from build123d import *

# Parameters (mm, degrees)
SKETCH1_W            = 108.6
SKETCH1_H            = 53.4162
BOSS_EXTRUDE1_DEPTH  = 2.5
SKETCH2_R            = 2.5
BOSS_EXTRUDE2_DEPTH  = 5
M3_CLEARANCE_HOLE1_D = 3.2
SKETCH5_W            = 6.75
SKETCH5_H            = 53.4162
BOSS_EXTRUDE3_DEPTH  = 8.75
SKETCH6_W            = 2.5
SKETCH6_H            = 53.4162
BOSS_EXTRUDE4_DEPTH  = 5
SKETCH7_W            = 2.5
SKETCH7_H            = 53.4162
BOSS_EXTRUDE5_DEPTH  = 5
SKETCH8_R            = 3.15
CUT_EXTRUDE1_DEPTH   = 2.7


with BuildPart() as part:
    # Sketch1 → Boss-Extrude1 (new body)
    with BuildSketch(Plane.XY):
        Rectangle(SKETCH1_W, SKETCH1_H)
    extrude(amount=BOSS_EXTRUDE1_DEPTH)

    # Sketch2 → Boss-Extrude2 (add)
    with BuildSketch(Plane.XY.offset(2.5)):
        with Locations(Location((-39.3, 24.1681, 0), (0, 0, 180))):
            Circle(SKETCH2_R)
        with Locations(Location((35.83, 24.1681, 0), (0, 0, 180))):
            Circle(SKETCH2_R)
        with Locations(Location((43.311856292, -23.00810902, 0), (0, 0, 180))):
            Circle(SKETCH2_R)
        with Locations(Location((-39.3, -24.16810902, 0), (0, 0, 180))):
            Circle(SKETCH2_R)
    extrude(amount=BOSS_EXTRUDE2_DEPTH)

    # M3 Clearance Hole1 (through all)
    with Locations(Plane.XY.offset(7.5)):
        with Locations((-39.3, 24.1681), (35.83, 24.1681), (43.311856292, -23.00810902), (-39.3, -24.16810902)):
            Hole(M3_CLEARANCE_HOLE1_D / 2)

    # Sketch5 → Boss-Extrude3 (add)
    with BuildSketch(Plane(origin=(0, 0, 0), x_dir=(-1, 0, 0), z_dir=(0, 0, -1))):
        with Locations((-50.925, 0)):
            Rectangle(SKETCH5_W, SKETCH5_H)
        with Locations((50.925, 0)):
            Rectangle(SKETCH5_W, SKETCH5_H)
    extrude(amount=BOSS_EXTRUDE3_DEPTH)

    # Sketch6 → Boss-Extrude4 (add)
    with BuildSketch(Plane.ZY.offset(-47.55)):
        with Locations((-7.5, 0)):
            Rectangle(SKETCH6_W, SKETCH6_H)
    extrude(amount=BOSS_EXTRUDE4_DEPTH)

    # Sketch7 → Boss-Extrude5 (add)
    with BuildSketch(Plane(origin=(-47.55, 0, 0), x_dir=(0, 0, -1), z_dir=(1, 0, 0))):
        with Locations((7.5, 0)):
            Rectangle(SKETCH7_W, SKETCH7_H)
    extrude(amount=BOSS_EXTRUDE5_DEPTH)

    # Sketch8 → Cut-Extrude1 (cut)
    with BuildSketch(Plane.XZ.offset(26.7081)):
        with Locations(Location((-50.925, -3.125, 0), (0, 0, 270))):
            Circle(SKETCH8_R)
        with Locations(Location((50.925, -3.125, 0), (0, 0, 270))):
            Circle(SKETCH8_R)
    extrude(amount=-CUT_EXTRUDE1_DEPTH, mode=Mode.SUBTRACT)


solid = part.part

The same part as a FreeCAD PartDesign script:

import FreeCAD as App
import Part
import Sketcher
from FreeCAD import Vector


def add_polygon(sketch, points):
    """Adds a closed chain of lines whose ends are joined by coincident constraints."""
    first, n = sketch.GeometryCount, len(points)
    for a, b in zip(points, points[1:] + points[:1]):
        sketch.addGeometry(Part.LineSegment(App.Vector(*a, 0), App.Vector(*b, 0)), False)
    for i in range(n):
        sketch.addConstraint(Sketcher.Constraint("Coincident", first + i, 2, first + (i + 1) % n, 1))

doc = App.newDocument("Part")
body = doc.addObject("PartDesign::Body", "Body")

sketch1 = body.newObject("Sketcher::SketchObject", "Sketch")
sketch1.AttachmentSupport = (doc.getObject("XY_Plane"), [""])
sketch1.MapMode = "FlatFace"
add_polygon(sketch1, [(-54, 27), (-54, -27), (54, -27), (54, 27)])
sketch1.addConstraint([
    Sketcher.Constraint("Vertical", 0),
    Sketcher.Constraint("Horizontal", 1),
    Sketcher.Constraint("Vertical", 2),
    Sketcher.Constraint("Horizontal", 3),
    Sketcher.Constraint("Symmetric", 0, 2, 2, 2, -1, 1),
    Sketcher.Constraint("DistanceX", 1, 1, 1, 2, 108.6),
    Sketcher.Constraint("DistanceY", 0, 2, 0, 1, 53.4162),
])
pad1 = body.newObject("PartDesign::Pad", "Pad")
pad1.Profile = sketch1
pad1.Length = 2.5

sketch2 = body.newObject("Sketcher::SketchObject", "Sketch001")
sketch2.AttachmentSupport = (doc.getObject("XY_Plane"), [""])
sketch2.MapMode = "FlatFace"
sketch2.AttachmentOffset = App.Placement(Vector(0, 0, 2.5), App.Rotation())
sketch2.addGeometry([
    Part.Circle(Vector(-39.3, 24.2, 0), Vector(0, 0, 1), 2.5),
    Part.Circle(Vector(35.8, 24.2, 0), Vector(0, 0, 1), 2.5),
    Part.Circle(Vector(43.3, -23, 0), Vector(0, 0, 1), 2.5),
    Part.Circle(Vector(-39.3, -24.2, 0), Vector(0, 0, 1), 2.5),
], False)
sketch2.addConstraint([
    Sketcher.Constraint("Equal", 0, 1),
    Sketcher.Constraint("Equal", 1, 2),
    Sketcher.Constraint("Equal", 2, 3),
    Sketcher.Constraint("Symmetric", 0, 3, 3, 3, -1),
    Sketcher.Constraint("Horizontal", 0, 3, 1, 3),
    Sketcher.Constraint("Diameter", 0, 5.0),
    Sketcher.Constraint("DistanceX", 0, 3, -1, 1, 39.3),
    Sketcher.Constraint("DistanceX", -1, 1, 1, 3, 35.83),
    Sketcher.Constraint("DistanceY", 3, 3, 2, 3, 1.16),
    Sketcher.Constraint("DistanceY", -1, 1, 0, 3, 24.1681),
    Sketcher.Constraint("DistanceX", -1, 1, 2, 3, 43.311856),
])
pad2 = body.newObject("PartDesign::Pad", "Pad001")
pad2.Profile = sketch2
pad2.Length = 5

sketch3 = body.newObject("Sketcher::SketchObject", "Sketch002")
sketch3.AttachmentSupport = (doc.getObject("XY_Plane"), [""])
sketch3.MapMode = "FlatFace"
sketch3.AttachmentOffset = App.Placement(Vector(0, 0, 7.5), App.Rotation())
sketch3.addGeometry([
    Part.Circle(Vector(-39.3, 24.2, 0), Vector(0, 0, 1), 1.6),
    Part.Circle(Vector(35.8, 24.2, 0), Vector(0, 0, 1), 1.6),
    Part.Circle(Vector(43.3, -23, 0), Vector(0, 0, 1), 1.6),
    Part.Circle(Vector(-39.3, -24.2, 0), Vector(0, 0, 1), 1.6),
], False)
sketch3.addConstraint([
    Sketcher.Constraint("Equal", 0, 1),
    Sketcher.Constraint("Equal", 1, 2),
    Sketcher.Constraint("Equal", 2, 3),
    Sketcher.Constraint("Symmetric", 0, 3, 3, 3, -1),
    Sketcher.Constraint("Horizontal", 0, 3, 1, 3),
    Sketcher.Constraint("Diameter", 0, 3.2),
    Sketcher.Constraint("DistanceX", 0, 3, -1, 1, 39.3),
    Sketcher.Constraint("DistanceX", -1, 1, 1, 3, 35.83),
    Sketcher.Constraint("DistanceY", 3, 3, 2, 3, 1.16),
    Sketcher.Constraint("DistanceY", -1, 1, 0, 3, 24.1681),
    Sketcher.Constraint("DistanceX", -1, 1, 2, 3, 43.311856),
])
doc.recompute()
hole = body.newObject("PartDesign::Hole", "Hole")
hole.Profile = sketch3
hole.ThreadType = "None"
hole.Diameter = 3.2
hole.DepthType = "ThroughAll"

sketch4 = body.newObject("Sketcher::SketchObject", "Sketch003")
sketch4.AttachmentSupport = (doc.getObject("XY_Plane"), [""])
sketch4.MapMode = "FlatFace"
add_polygon(sketch4, [(54, 27), (54, -27), (48, -27), (48, 27)])
add_polygon(sketch4, [(-48, 27), (-48, -27), (-54, -27), (-54, 27)])
sketch4.addConstraint([
    Sketcher.Constraint("Vertical", 0),
    Sketcher.Constraint("Horizontal", 1),
    Sketcher.Constraint("Vertical", 2),
    Sketcher.Constraint("Horizontal", 3),
    Sketcher.Constraint("Vertical", 4),
    Sketcher.Constraint("Horizontal", 5),
    Sketcher.Constraint("Vertical", 6),
    Sketcher.Constraint("Horizontal", 7),
    Sketcher.Constraint("Symmetric", 2, 2, 4, 2, -1, 1),
    Sketcher.Constraint("Symmetric", 0, 2, 6, 2, -1, 1),
    Sketcher.Constraint("Horizontal", 1, 2, 4, 2),
    Sketcher.Constraint("DistanceX", 1, 2, 1, 1, 6.75),
    Sketcher.Constraint("DistanceX", -1, 1, 0, 2, 54.3),
    Sketcher.Constraint("DistanceY", 0, 2, 0, 1, 53.4162),
])
pad3 = body.newObject("PartDesign::Pad", "Pad002")
pad3.Profile = sketch4
pad3.Length = 8.75
pad3.Reversed = True

sketch5 = body.newObject("Sketcher::SketchObject", "Sketch004")
sketch5.AttachmentSupport = (doc.getObject("YZ_Plane"), [""])
sketch5.MapMode = "FlatFace"
sketch5.AttachmentOffset = App.Placement(Vector(0, 0, 47.55), App.Rotation())
add_polygon(sketch5, [(26.7, -8.8), (-26.7, -8.8), (-26.7, -6.2), (26.7, -6.2)])
sketch5.addConstraint([
    Sketcher.Constraint("Horizontal", 0),
    Sketcher.Constraint("Vertical", 1),
    Sketcher.Constraint("Horizontal", 2),
    Sketcher.Constraint("Vertical", 3),
    Sketcher.Constraint("DistanceY", 1, 1, 1, 2, 2.5),
    Sketcher.Constraint("DistanceY", 0, 2, -1, 1, 8.75),
    Sketcher.Constraint("DistanceX", 0, 2, 0, 1, 53.4162),
    Sketcher.Constraint("DistanceX", 0, 2, -1, 1, 26.7081),
])
pad4 = body.newObject("PartDesign::Pad", "Pad003")
pad4.Profile = sketch5
pad4.Length = 5
pad4.Reversed = True

sketch6 = body.newObject("Sketcher::SketchObject", "Sketch005")
sketch6.AttachmentSupport = (doc.getObject("YZ_Plane"), [""])
sketch6.MapMode = "FlatFace"
sketch6.AttachmentOffset = App.Placement(Vector(0, 0, -47.55), App.Rotation())
add_polygon(sketch6, [(26.7, -6.2), (-26.7, -6.2), (-26.7, -8.8), (26.7, -8.8)])
sketch6.addConstraint([
    Sketcher.Constraint("Horizontal", 0),
    Sketcher.Constraint("Vertical", 1),
    Sketcher.Constraint("Horizontal", 2),
    Sketcher.Constraint("Vertical", 3),
    Sketcher.Constraint("DistanceY", 1, 2, 1, 1, 2.5),
    Sketcher.Constraint("DistanceY", 0, 2, -1, 1, 6.25),
    Sketcher.Constraint("DistanceX", 0, 2, 0, 1, 53.4162),
    Sketcher.Constraint("DistanceX", 0, 2, -1, 1, 26.7081),
])
pad5 = body.newObject("PartDesign::Pad", "Pad004")
pad5.Profile = sketch6
pad5.Length = 5

sketch7 = body.newObject("Sketcher::SketchObject", "Sketch006")
sketch7.AttachmentSupport = (doc.getObject("XZ_Plane"), [""])
sketch7.MapMode = "FlatFace"
sketch7.AttachmentOffset = App.Placement(Vector(0, 0, 26.7081), App.Rotation())
sketch7.addGeometry([
    Part.Circle(Vector(-50.9, -3.1, 0), Vector(0, 0, 1), 3.1),
    Part.Circle(Vector(50.9, -3.1, 0), Vector(0, 0, 1), 3.1),
], False)
sketch7.addConstraint([
    Sketcher.Constraint("Equal", 0, 1),
    Sketcher.Constraint("Symmetric", 0, 3, 1, 3, -2),
    Sketcher.Constraint("Diameter", 0, 6.3),
    Sketcher.Constraint("DistanceX", 0, 3, 1, 3, 101.85),
    Sketcher.Constraint("DistanceY", 0, 3, -1, 1, 3.125),
])
pocket1 = body.newObject("PartDesign::Pocket", "Pocket")
pocket1.Profile = sketch7
pocket1.Length = 2.7

doc.recompute()
